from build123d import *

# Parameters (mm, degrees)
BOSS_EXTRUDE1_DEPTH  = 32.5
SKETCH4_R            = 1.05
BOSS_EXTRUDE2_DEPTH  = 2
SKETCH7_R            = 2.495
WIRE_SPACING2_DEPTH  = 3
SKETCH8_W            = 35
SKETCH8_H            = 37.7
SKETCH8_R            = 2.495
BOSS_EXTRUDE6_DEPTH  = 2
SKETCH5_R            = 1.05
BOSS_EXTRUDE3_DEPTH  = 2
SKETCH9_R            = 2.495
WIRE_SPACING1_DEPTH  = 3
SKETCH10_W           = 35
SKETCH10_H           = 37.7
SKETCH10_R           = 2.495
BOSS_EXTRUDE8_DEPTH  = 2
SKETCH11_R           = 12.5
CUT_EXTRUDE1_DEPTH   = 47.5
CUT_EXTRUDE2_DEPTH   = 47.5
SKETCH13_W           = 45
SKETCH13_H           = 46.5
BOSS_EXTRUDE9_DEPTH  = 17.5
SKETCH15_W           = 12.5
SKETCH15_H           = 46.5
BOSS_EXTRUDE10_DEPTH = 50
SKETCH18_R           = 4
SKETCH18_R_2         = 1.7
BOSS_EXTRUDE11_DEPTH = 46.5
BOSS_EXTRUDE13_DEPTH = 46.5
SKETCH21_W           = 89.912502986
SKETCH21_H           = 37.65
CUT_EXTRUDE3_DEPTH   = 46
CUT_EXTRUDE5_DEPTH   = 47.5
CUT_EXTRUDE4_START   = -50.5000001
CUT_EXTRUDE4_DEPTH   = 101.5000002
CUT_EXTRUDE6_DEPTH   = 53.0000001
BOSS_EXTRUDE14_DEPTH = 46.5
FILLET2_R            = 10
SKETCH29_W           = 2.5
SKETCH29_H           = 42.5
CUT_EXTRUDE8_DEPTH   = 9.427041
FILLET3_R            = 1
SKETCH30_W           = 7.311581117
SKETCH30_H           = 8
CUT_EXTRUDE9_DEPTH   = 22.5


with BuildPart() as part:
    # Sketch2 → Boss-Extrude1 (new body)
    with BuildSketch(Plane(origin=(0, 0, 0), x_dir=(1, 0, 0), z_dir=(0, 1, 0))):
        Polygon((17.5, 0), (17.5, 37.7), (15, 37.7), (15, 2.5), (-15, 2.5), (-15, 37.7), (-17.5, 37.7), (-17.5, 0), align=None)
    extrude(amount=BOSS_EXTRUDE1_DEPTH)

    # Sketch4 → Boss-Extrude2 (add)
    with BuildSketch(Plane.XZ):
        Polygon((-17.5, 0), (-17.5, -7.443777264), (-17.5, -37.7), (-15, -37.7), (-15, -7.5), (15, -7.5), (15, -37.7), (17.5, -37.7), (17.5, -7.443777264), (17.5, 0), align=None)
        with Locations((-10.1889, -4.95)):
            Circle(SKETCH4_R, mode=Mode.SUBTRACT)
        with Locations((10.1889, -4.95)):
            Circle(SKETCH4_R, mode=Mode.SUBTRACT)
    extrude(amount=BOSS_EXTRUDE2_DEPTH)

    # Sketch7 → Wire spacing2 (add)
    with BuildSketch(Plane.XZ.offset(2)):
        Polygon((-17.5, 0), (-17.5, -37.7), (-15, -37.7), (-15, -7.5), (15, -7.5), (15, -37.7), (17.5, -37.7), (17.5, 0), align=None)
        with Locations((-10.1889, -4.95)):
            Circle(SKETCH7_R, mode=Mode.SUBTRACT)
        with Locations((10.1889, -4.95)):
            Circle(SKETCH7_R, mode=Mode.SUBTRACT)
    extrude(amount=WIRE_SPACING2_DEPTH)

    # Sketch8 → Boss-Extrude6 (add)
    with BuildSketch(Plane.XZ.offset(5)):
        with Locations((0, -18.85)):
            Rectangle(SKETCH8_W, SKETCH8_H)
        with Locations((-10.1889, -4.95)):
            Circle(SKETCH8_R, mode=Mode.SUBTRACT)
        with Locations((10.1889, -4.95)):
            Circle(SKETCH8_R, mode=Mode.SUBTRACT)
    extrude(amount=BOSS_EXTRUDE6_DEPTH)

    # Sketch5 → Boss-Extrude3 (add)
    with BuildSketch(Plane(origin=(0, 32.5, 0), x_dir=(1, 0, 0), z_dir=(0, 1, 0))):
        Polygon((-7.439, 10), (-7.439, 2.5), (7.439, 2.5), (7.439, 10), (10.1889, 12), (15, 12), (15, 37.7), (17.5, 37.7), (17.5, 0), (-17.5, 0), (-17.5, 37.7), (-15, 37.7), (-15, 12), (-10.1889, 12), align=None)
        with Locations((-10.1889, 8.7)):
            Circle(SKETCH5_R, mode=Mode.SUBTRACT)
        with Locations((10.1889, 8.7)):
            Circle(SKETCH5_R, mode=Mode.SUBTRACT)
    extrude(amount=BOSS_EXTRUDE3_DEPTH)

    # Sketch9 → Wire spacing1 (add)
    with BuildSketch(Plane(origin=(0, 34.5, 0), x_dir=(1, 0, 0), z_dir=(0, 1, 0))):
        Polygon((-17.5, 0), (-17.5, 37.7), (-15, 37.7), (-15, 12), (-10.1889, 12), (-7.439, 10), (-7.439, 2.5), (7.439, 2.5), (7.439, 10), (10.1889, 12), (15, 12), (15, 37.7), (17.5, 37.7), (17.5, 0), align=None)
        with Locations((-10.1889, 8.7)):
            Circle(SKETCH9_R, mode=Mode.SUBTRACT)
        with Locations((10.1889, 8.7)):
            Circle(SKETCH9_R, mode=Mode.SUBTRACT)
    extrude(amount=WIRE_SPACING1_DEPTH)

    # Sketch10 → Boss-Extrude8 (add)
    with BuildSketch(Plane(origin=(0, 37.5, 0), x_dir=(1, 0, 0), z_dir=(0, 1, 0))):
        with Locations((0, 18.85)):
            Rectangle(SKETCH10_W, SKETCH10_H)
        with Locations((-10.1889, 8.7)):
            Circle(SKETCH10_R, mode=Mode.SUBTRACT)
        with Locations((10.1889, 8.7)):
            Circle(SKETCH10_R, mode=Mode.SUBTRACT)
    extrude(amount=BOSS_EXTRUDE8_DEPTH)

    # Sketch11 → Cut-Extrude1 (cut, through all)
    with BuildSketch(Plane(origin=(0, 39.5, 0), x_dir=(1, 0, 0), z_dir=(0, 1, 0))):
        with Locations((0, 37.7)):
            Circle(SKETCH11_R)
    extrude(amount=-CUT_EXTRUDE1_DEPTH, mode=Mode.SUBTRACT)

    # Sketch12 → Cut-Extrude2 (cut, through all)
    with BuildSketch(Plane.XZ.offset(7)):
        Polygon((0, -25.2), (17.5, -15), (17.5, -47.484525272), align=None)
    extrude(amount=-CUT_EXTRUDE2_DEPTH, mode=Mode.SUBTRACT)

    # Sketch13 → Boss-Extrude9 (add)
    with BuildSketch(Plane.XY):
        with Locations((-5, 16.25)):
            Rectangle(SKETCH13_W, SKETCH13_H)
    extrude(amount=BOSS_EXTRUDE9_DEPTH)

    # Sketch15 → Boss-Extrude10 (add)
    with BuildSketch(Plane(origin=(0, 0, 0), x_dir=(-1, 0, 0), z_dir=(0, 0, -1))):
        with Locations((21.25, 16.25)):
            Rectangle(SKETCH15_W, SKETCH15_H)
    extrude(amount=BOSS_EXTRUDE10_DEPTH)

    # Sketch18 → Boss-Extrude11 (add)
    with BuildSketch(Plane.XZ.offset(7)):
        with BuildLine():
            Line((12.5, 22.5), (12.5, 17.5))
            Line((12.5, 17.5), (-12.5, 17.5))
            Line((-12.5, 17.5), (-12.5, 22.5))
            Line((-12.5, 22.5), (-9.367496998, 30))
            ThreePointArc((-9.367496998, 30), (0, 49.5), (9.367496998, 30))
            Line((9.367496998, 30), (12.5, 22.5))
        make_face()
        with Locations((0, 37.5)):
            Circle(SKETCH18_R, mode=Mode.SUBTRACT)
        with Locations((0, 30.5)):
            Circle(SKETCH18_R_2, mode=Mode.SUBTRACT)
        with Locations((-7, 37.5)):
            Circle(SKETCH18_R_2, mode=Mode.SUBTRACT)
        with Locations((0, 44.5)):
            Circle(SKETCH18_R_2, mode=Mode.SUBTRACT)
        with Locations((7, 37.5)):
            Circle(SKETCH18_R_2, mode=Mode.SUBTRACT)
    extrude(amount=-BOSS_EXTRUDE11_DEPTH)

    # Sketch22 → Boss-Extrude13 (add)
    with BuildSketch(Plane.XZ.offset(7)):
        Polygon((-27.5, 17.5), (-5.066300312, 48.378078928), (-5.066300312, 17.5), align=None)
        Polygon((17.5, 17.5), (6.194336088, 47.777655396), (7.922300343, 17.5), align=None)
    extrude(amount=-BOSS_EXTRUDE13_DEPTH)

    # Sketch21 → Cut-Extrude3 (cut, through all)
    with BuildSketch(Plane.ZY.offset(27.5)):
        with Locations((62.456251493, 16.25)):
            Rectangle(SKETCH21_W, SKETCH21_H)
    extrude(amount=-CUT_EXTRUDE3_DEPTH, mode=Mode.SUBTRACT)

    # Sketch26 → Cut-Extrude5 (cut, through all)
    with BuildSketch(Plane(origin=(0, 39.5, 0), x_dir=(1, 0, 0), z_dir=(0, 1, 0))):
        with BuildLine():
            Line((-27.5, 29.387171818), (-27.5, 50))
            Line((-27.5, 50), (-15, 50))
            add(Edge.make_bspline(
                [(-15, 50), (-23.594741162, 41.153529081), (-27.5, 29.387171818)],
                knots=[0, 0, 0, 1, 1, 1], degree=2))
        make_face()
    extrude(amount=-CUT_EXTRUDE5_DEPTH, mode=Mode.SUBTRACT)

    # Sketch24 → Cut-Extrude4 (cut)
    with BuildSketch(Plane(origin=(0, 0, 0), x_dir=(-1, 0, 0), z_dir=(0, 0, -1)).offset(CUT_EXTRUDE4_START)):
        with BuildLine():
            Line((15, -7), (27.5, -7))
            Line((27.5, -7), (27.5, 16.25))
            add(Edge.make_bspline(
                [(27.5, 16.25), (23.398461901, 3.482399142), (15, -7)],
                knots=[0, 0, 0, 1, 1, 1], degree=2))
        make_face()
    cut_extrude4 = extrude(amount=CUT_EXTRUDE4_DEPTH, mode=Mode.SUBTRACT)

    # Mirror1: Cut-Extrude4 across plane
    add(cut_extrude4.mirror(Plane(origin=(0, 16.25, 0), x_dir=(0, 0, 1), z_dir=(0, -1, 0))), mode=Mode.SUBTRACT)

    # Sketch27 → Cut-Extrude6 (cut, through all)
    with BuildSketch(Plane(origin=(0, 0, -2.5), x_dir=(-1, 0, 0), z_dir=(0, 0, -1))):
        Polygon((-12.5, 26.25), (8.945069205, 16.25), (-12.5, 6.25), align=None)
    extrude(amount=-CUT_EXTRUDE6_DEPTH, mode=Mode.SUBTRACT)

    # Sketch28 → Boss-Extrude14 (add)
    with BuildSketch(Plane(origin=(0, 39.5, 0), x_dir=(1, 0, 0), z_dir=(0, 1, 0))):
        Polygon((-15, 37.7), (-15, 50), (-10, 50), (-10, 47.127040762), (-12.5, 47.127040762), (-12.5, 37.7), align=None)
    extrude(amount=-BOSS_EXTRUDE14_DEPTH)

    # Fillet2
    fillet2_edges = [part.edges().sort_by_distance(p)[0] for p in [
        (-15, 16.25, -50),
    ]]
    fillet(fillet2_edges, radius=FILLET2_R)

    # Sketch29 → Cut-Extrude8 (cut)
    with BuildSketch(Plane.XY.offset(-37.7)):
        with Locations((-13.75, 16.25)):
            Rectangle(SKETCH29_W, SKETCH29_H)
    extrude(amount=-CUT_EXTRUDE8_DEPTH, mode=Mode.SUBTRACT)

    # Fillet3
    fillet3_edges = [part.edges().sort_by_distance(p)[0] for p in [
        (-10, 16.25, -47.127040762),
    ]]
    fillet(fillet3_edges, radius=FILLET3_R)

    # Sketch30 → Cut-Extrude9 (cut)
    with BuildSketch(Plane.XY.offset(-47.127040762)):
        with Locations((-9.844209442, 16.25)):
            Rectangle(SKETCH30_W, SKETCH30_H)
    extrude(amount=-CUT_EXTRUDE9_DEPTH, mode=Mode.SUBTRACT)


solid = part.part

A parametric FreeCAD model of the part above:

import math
import FreeCAD as App
import Part
import Sketcher

V = App.Vector
Q = App.Units.Quantity


def edges_at(feature, points):
    """Names of the edges that pass closest to the given points."""
    edges = feature.Shape.Edges
    near = lambda p: min(range(len(edges)), key=lambda i: edges[i].distToShape(Part.Vertex(*p))[0])
    return sorted({f"Edge{near(p) + 1}" for p in points})


def add_polygon(sketch, points):
    """Adds a closed chain of lines whose ends are joined by coincident constraints."""
    first, n = sketch.GeometryCount, len(points)
    for a, b in zip(points, points[1:] + points[:1]):
        sketch.addGeometry(Part.LineSegment(App.Vector(*a, 0), App.Vector(*b, 0)), False)
    for i in range(n):
        sketch.addConstraint(Sketcher.Constraint("Coincident", first + i, 2, first + (i + 1) % n, 1))

doc = App.newDocument("Part")
body = doc.addObject("PartDesign::Body", "Body")

# Sketch on XZ plane
sketch1 = doc.addObject("Sketcher::SketchObject", "Sketch")
body.addObject(sketch1)
sketch1.AttachmentSupport = (doc.XZ_Plane, [""])
sketch1.MapMode = "FlatFace"
add_polygon(sketch1, [(17.5, 0), (17.5, -37.7), (15, -37.7), (15, -2.5), (-15, -2.5), (-15, -37.7), (-17.5, -37.7), (-17.5, 0)])  # lines 0-7
sketch1.addConstraint([
    Sketcher.Constraint("Vertical", 0),
    Sketcher.Constraint("Horizontal", 1),
    Sketcher.Constraint("Vertical", 2),
    Sketcher.Constraint("Horizontal", 3),
    Sketcher.Constraint("Vertical", 4),
    Sketcher.Constraint("Horizontal", 5),
    Sketcher.Constraint("Vertical", 6),
    Sketcher.Constraint("Horizontal", 7),
    Sketcher.Constraint("Symmetric", 6, 2, 7, 2, -1, 1),
    Sketcher.Constraint("Symmetric", 1, 2, 4, 2, -2),
    Sketcher.Constraint("DistanceX", 3, 2, 3, 1, 30.0),
    Sketcher.Constraint("DistanceX", 7, 1, 7, 2, 35.0),
    Sketcher.Constraint("DistanceY", 0, 2, 0, 1, 37.7),
    Sketcher.Constraint("DistanceY", 2, 1, 2, 2, 35.2),
])
pad1 = doc.addObject("PartDesign::Pad", "Pad")
body.addObject(pad1)
pad1.Profile = sketch1
pad1.Length = 32.5
pad1.Reversed = True

# Sketch on XZ plane
sketch2 = doc.addObject("Sketcher::SketchObject", "Sketch001")
body.addObject(sketch2)
sketch2.AttachmentSupport = (doc.XZ_Plane, [""])
sketch2.MapMode = "FlatFace"
add_polygon(sketch2, [(-17.5, 0), (-17.5, -37.7), (-15, -37.7), (-15, -7.5), (15, -7.5), (15, -37.7), (17.5, -37.7), (17.5, 0)])  # lines 0-7
sketch2.addGeometry(Part.Circle(V(-10.2, -5, 0), V(0, 0, 1), 1.1), False)  # 8
sketch2.addGeometry(Part.Circle(V(10.2, -5, 0), V(0, 0, 1), 1.1), False)  # 9
sketch2.addConstraint([
    Sketcher.Constraint("Vertical", 0),
    Sketcher.Constraint("Horizontal", 1),
    Sketcher.Constraint("Vertical", 2),
    Sketcher.Constraint("Horizontal", 3),
    Sketcher.Constraint("Vertical", 4),
    Sketcher.Constraint("Horizontal", 5),
    Sketcher.Constraint("Vertical", 6),
    Sketcher.Constraint("Horizontal", 7),
    Sketcher.Constraint("Equal", 8, 9),
    Sketcher.Constraint("Symmetric", 6, 2, 7, 2, -1, 1),
    Sketcher.Constraint("Symmetric", 8, 3, 9, 3, -2),
    Sketcher.Constraint("Symmetric", 1, 2, 4, 2, -2),
    Sketcher.Constraint("Diameter", 8, 2.1),
    Sketcher.Constraint("DistanceX", 3, 1, 3, 2, 30.0),
    Sketcher.Constraint("DistanceX", 7, 2, 7, 1, 35.0),
    Sketcher.Constraint("DistanceY", 0, 2, 0, 1, 37.7),
    Sketcher.Constraint("DistanceY", 2, 1, 2, 2, 30.2),
    Sketcher.Constraint("DistanceY", 8, 3, -1, 1, 4.95),
    Sketcher.Constraint("DistanceX", 8, 3, -1, 1, 10.1889),
])
pad2 = doc.addObject("PartDesign::Pad", "Pad001")
body.addObject(pad2)
pad2.Profile = sketch2
pad2.Length = 2

# Sketch on XZ plane
sketch3 = doc.addObject("Sketcher::SketchObject", "Sketch002")
body.addObject(sketch3)
sketch3.AttachmentSupport = (doc.XZ_Plane, [""])
sketch3.MapMode = "FlatFace"
sketch3.AttachmentOffset = App.Placement(V(0, 0, 2), App.Rotation())
add_polygon(sketch3, [(-17.5, 0), (-17.5, -37.7), (-15, -37.7), (-15, -7.5), (15, -7.5), (15, -37.7), (17.5, -37.7), (17.5, 0)])  # lines 0-7
sketch3.addGeometry(Part.Circle(V(-10.2, -5, 0), V(0, 0, 1), 2.5), False)  # 8
sketch3.addGeometry(Part.Circle(V(10.2, -5, 0), V(0, 0, 1), 2.5), False)  # 9
sketch3.addConstraint([
    Sketcher.Constraint("Vertical", 0),
    Sketcher.Constraint("Horizontal", 1),
    Sketcher.Constraint("Vertical", 2),
    Sketcher.Constraint("Horizontal", 3),
    Sketcher.Constraint("Vertical", 4),
    Sketcher.Constraint("Horizontal", 5),
    Sketcher.Constraint("Vertical", 6),
    Sketcher.Constraint("Horizontal", 7),
    Sketcher.Constraint("Equal", 8, 9),
    Sketcher.Constraint("Symmetric", 6, 2, 7, 2, -1, 1),
    Sketcher.Constraint("Symmetric", 8, 3, 9, 3, -2),
    Sketcher.Constraint("Symmetric", 1, 2, 4, 2, -2),
    Sketcher.Constraint("Diameter", 8, 4.99),
    Sketcher.Constraint("DistanceX", 3, 1, 3, 2, 30.0),
    Sketcher.Constraint("DistanceX", 7, 2, 7, 1, 35.0),
    Sketcher.Constraint("DistanceY", 0, 2, 0, 1, 37.7),
    Sketcher.Constraint("DistanceY", 2, 1, 2, 2, 30.2),
    Sketcher.Constraint("DistanceY", 8, 3, -1, 1, 4.95),
    Sketcher.Constraint("DistanceX", 8, 3, -1, 1, 10.1889),
])
pad3 = doc.addObject("PartDesign::Pad", "Pad002")
body.addObject(pad3)
pad3.Profile = sketch3
pad3.Length = 3

# Sketch on XZ plane
sketch4 = doc.addObject("Sketcher::SketchObject", "Sketch003")
body.addObject(sketch4)
sketch4.AttachmentSupport = (doc.XZ_Plane, [""])
sketch4.MapMode = "FlatFace"
sketch4.AttachmentOffset = App.Placement(V(0, 0, 5), App.Rotation())
add_polygon(sketch4, [(-17.5, 0), (-17.5, -37.7), (17.5, -37.7), (17.5, 0)])  # lines 0-3
sketch4.addGeometry(Part.Circle(V(-10.2, -5, 0), V(0, 0, 1), 2.5), False)  # 4
sketch4.addGeometry(Part.Circle(V(10.2, -5, 0), V(0, 0, 1), 2.5), False)  # 5
sketch4.addConstraint([
    Sketcher.Constraint("Vertical", 0),
    Sketcher.Constraint("Horizontal", 1),
    Sketcher.Constraint("Vertical", 2),
    Sketcher.Constraint("Horizontal", 3),
    Sketcher.Constraint("Equal", 4, 5),
    Sketcher.Constraint("Symmetric", 2, 2, 3, 2, -1, 1),
    Sketcher.Constraint("Symmetric", 4, 3, 5, 3, -2),
    Sketcher.Constraint("Diameter", 4, 4.99),
    Sketcher.Constraint("DistanceX", 1, 1, 1, 2, 35.0),
    Sketcher.Constraint("DistanceY", 0, 2, 0, 1, 37.7),
    Sketcher.Constraint("DistanceY", 4, 3, -1, 1, 4.95),
    Sketcher.Constraint("DistanceX", 4, 3, -1, 1, 10.1889),
])
pad4 = doc.addObject("PartDesign::Pad", "Pad003")
body.addObject(pad4)
pad4.Profile = sketch4
pad4.Length = 2

# Sketch on XZ plane
sketch5 = doc.addObject("Sketcher::SketchObject", "Sketch004")
body.addObject(sketch5)
sketch5.AttachmentSupport = (doc.XZ_Plane, [""])
sketch5.MapMode = "FlatFace"
sketch5.AttachmentOffset = App.Placement(V(0, 0, -32.5), App.Rotation())
add_polygon(sketch5, [(-7.4, -2.5), (-7.4, -10), (-10.2, -12), (-15, -12), (-15, -37.7), (-17.5, -37.7), (-17.5, 0), (17.5, 0), (17.5, -37.7), (15, -37.7), (15, -12), (10.2, -12), (7.4, -10), (7.4, -2.5)])  # lines 0-13
sketch5.addGeometry(Part.Circle(V(10.2, -8.7, 0), V(0, 0, 1), 1.1), False)  # 14
sketch5.addGeometry(Part.Circle(V(-10.2, -8.7, 0), V(0, 0, 1), 1.1), False)  # 15
sketch5.addConstraint([
    Sketcher.Constraint("Vertical", 0),
    Sketcher.Constraint("Horizontal", 2),
    Sketcher.Constraint("Vertical", 3),
    Sketcher.Constraint("Horizontal", 4),
    Sketcher.Constraint("Vertical", 5),
    Sketcher.Constraint("Horizontal", 6),
    Sketcher.Constraint("Vertical", 7),
    Sketcher.Constraint("Horizontal", 8),
    Sketcher.Constraint("Vertical", 9),
    Sketcher.Constraint("Horizontal", 10),
    Sketcher.Constraint("Vertical", 12),
    Sketcher.Constraint("Horizontal", 13),
    Sketcher.Constraint("Equal", 14, 15),
    Sketcher.Constraint("Symmetric", 5, 2, 6, 2, -1, 1),
    Sketcher.Constraint("Symmetric", 14, 3, 15, 3, -2),
    Sketcher.Constraint("Symmetric", 3, 2, 8, 2, -2),
    Sketcher.Constraint("Symmetric", 1, 2, 10, 2, -2),
    Sketcher.Constraint("Symmetric", 0, 2, 11, 2, -2),
    Sketcher.Constraint("Vertical", 15, 3, 1, 2),
    Sketcher.Constraint("Diameter", 14, 2.1),
    Sketcher.Constraint("DistanceX", 6, 1, 6, 2, 35.0),
    Sketcher.Constraint("DistanceX", 4, 2, 4, 1, 2.5),
    Sketcher.Constraint("DistanceY", 0, 2, 0, 1, 7.5),
    Sketcher.Constraint("DistanceY", 3, 2, 3, 1, 25.7),
    Sketcher.Constraint("DistanceY", 5, 1, 5, 2, 37.7),
    Sketcher.Constraint("DistanceY", 0, 2, -1, 1, 10.0),
    Sketcher.Constraint("DistanceY", 3, 2, 15, 3, 29.0),
    Sketcher.Constraint("DistanceX", 13, 2, 13, 1, 14.878),
    Sketcher.Constraint("DistanceX", 2, 2, 2, 1, 4.8111),
])
pad5 = doc.addObject("PartDesign::Pad", "Pad004")
body.addObject(pad5)
pad5.Profile = sketch5
pad5.Length = 2
pad5.Reversed = True

# Sketch on XZ plane
sketch6 = doc.addObject("Sketcher::SketchObject", "Sketch005")
body.addObject(sketch6)
sketch6.AttachmentSupport = (doc.XZ_Plane, [""])
sketch6.MapMode = "FlatFace"
sketch6.AttachmentOffset = App.Placement(V(0, 0, -34.5), App.Rotation())
add_polygon(sketch6, [(-17.5, -37.7), (-17.5, 0), (17.5, 0), (17.5, -37.7), (15, -37.7), (15, -12), (10.2, -12), (7.4, -10), (7.4, -2.5), (-7.4, -2.5), (-7.4, -10), (-10.2, -12), (-15, -12), (-15, -37.7)])  # lines 0-13
sketch6.addGeometry(Part.Circle(V(10.2, -8.7, 0), V(0, 0, 1), 2.5), False)  # 14
sketch6.addGeometry(Part.Circle(V(-10.2, -8.7, 0), V(0, 0, 1), 2.5), False)  # 15
sketch6.addConstraint([
    Sketcher.Constraint("Vertical", 0),
    Sketcher.Constraint("Horizontal", 1),
    Sketcher.Constraint("Vertical", 2),
    Sketcher.Constraint("Horizontal", 3),
    Sketcher.Constraint("Vertical", 4),
    Sketcher.Constraint("Horizontal", 5),
    Sketcher.Constraint("Vertical", 7),
    Sketcher.Constraint("Horizontal", 8),
    Sketcher.Constraint("Vertical", 9),
    Sketcher.Constraint("Horizontal", 11),
    Sketcher.Constraint("Vertical", 12),
    Sketcher.Constraint("Horizontal", 13),
    Sketcher.Constraint("Equal", 14, 15),
    Sketcher.Constraint("Symmetric", 0, 2, 1, 2, -1, 1),
    Sketcher.Constraint("Symmetric", 14, 3, 15, 3, -2),
    Sketcher.Constraint("Symmetric", 6, 2, 9, 2, -2),
    Sketcher.Constraint("Symmetric", 5, 2, 10, 2, -2),
    Sketcher.Constraint("Symmetric", 3, 2, 12, 2, -2),
    Sketcher.Constraint("Vertical", 14, 3, 5, 2),
    Sketcher.Constraint("Diameter", 14, 4.99),
    Sketcher.Constraint("DistanceX", 1, 1, 1, 2, 35.0),
    Sketcher.Constraint("DistanceX", 3, 2, 3, 1, 2.5),
    Sketcher.Constraint("DistanceY", 0, 1, 0, 2, 37.7),
    Sketcher.Constraint("DistanceY", 4, 1, 4, 2, 25.7),
    Sketcher.Constraint("DistanceY", 7, 1, 7, 2, 7.5),
    Sketcher.Constraint("DistanceY", 6, 2, -1, 1, 10.0),
    Sketcher.Constraint("DistanceY", 2, 2, 14, 3, 29.0),
    Sketcher.Constraint("DistanceX", 8, 2, 8, 1, 14.878),
    Sketcher.Constraint("DistanceX", 5, 2, 5, 1, 4.8111),
])
pad6 = doc.addObject("PartDesign::Pad", "Pad005")
body.addObject(pad6)
pad6.Profile = sketch6
pad6.Length = 3
pad6.Reversed = True

# Sketch on XZ plane
sketch7 = doc.addObject("Sketcher::SketchObject", "Sketch006")
body.addObject(sketch7)
sketch7.AttachmentSupport = (doc.XZ_Plane, [""])
sketch7.MapMode = "FlatFace"
sketch7.AttachmentOffset = App.Placement(V(0, 0, -37.5), App.Rotation())
add_polygon(sketch7, [(-17.5, -37.7), (-17.5, 0), (17.5, 0), (17.5, -37.7)])  # lines 0-3
sketch7.addGeometry(Part.Circle(V(-10.2, -8.7, 0), V(0, 0, 1), 2.5), False)  # 4
sketch7.addGeometry(Part.Circle(V(10.2, -8.7, 0), V(0, 0, 1), 2.5), False)  # 5
sketch7.addConstraint([
    Sketcher.Constraint("Vertical", 0),
    Sketcher.Constraint("Horizontal", 1),
    Sketcher.Constraint("Vertical", 2),
    Sketcher.Constraint("Horizontal", 3),
    Sketcher.Constraint("Equal", 4, 5),
    Sketcher.Constraint("Symmetric", 0, 2, 1, 2, -1, 1),
    Sketcher.Constraint("Symmetric", 4, 3, 5, 3, -2),
    Sketcher.Constraint("Diameter", 4, 4.99),
    Sketcher.Constraint("DistanceX", 1, 1, 1, 2, 35.0),
    Sketcher.Constraint("DistanceY", 0, 1, 0, 2, 37.7),
    Sketcher.Constraint("DistanceY", 2, 2, 5, 3, 29.0),
    Sketcher.Constraint("DistanceX", 4, 3, -1, 1, 10.1889),
])
pad7 = doc.addObject("PartDesign::Pad", "Pad006")
body.addObject(pad7)
pad7.Profile = sketch7
pad7.Length = 2
pad7.Reversed = True

# Sketch on XZ plane
sketch8 = doc.addObject("Sketcher::SketchObject", "Sketch007")
body.addObject(sketch8)
sketch8.AttachmentSupport = (doc.XZ_Plane, [""])
sketch8.MapMode = "FlatFace"
sketch8.AttachmentOffset = App.Placement(V(0, 0, -39.5), App.Rotation())
sketch8.addGeometry(Part.Circle(V(0, -38, 0), V(0, 0, 1), 12), False)
sketch8.addConstraint([
    Sketcher.Constraint("PointOnObject", 0, 3, -2),
    Sketcher.Constraint("Diameter", 0, 25.0),
    Sketcher.Constraint("DistanceY", 0, 3, -1, 1, 37.7),
])
pocket1 = doc.addObject("PartDesign::Pocket", "Pocket")
body.addObject(pocket1)
pocket1.Profile = sketch8
pocket1.Type = "ThroughAll"
pocket1.Reversed = True

# Sketch on XZ plane
sketch9 = doc.addObject("Sketcher::SketchObject", "Sketch008")
body.addObject(sketch9)
sketch9.AttachmentSupport = (doc.XZ_Plane, [""])
sketch9.MapMode = "FlatFace"
sketch9.AttachmentOffset = App.Placement(V(0, 0, 7), App.Rotation())
add_polygon(sketch9, [(18, -15), (0, -25), (18, -47)])  # lines 0-2
sketch9.addConstraint([
    Sketcher.Constraint("Vertical", 2),
    Sketcher.Constraint("PointOnObject", 0, 2, -2),
    Sketcher.Constraint("DistanceY", 2, 2, -1, 1, 15.0),
    Sketcher.Constraint("DistanceY", 0, 2, -1, 1, 25.2),
    Sketcher.Constraint("DistanceX", -1, 1, 1, 2, 17.5),
    Sketcher.Constraint("Distance", 1, 28.334609),
])
pocket2 = doc.addObject("PartDesign::Pocket", "Pocket001")
body.addObject(pocket2)
pocket2.Profile = sketch9
pocket2.Type = "ThroughAll"

# Sketch on XY plane
sketch10 = doc.addObject("Sketcher::SketchObject", "Sketch009")
body.addObject(sketch10)
sketch10.AttachmentSupport = (doc.XY_Plane, [""])
sketch10.MapMode = "FlatFace"
add_polygon(sketch10, [(-28, 40), (-28, -7), (18, -7), (18, 40)])  # lines 0-3
sketch10.addConstraint([
    Sketcher.Constraint("Vertical", 0),
    Sketcher.Constraint("Horizontal", 1),
    Sketcher.Constraint("Vertical", 2),
    Sketcher.Constraint("Horizontal", 3),
    Sketcher.Constraint("DistanceX", 1, 1, 1, 2, 45.0),
    Sketcher.Constraint("DistanceY", 0, 2, 0, 1, 46.5),
    Sketcher.Constraint("DistanceY", 0, 2, -1, 1, 7.0),
    Sketcher.Constraint("DistanceX", 0, 2, -1, 1, 27.5),
])
pad8 = doc.addObject("PartDesign::Pad", "Pad007")
body.addObject(pad8)
pad8.Profile = sketch10
pad8.Length = 17.5

# Sketch on XY plane
sketch11 = doc.addObject("Sketcher::SketchObject", "Sketch010")
body.addObject(sketch11)
sketch11.AttachmentSupport = (doc.XY_Plane, [""])
sketch11.MapMode = "FlatFace"
add_polygon(sketch11, [(-15, 40), (-15, -7), (-28, -7), (-28, 40)])  # lines 0-3
sketch11.addConstraint([
    Sketcher.Constraint("Vertical", 0),
    Sketcher.Constraint("Horizontal", 1),
    Sketcher.Constraint("Vertical", 2),
    Sketcher.Constraint("Horizontal", 3),
    Sketcher.Constraint("DistanceX", 1, 2, 1, 1, 12.5),
    Sketcher.Constraint("DistanceY", 0, 2, 0, 1, 46.5),
    Sketcher.Constraint("DistanceX", 0, 2, -1, 1, 15.0),
    Sketcher.Constraint("DistanceY", 0, 2, -1, 1, 7.0),
])
pad9 = doc.addObject("PartDesign::Pad", "Pad008")
body.addObject(pad9)
pad9.Profile = sketch11
pad9.Length = 50
pad9.Reversed = True

# Sketch on XZ plane
sketch12 = doc.addObject("Sketcher::SketchObject", "Sketch011")
body.addObject(sketch12)
sketch12.AttachmentSupport = (doc.XZ_Plane, [""])
sketch12.MapMode = "FlatFace"
sketch12.AttachmentOffset = App.Placement(V(0, 0, 7), App.Rotation())
sketch12.addGeometry([
    Part.LineSegment(V(12.5, 17.5, 0), V(12.5, 22.5, 0)),  # 0
    Part.LineSegment(V(12.5, 22.5, 0), V(9.4, 30, 0)),  # 1
    Part.ArcOfCircle(Part.Circle(V(0, 37.5, 0), V(0, 0, 1), 12), math.radians(-39), math.radians(219)),  # 2
    Part.LineSegment(V(-9.4, 30, 0), V(-12.5, 22.5, 0)),  # 3
    Part.LineSegment(V(-12.5, 22.5, 0), V(-12.5, 17.5, 0)),  # 4
    Part.LineSegment(V(-12.5, 17.5, 0), V(12.5, 17.5, 0)),  # 5
    Part.Circle(V(0, 30.5, 0), V(0, 0, 1), 1.7),  # 6
    Part.Circle(V(7, 37.5, 0), V(0, 0, 1), 1.7),  # 7
    Part.Circle(V(0, 37.5, 0), V(0, 0, 1), 4),  # 8
    Part.Circle(V(-7, 37.5, 0), V(0, 0, 1), 1.7),  # 9
    Part.Circle(V(0, 44.5, 0), V(0, 0, 1), 1.7),  # 10
], False)
sketch12.addConstraint([
    Sketcher.Constraint("Coincident", 0, 2, 1, 1),
    Sketcher.Constraint("Coincident", 1, 2, 2, 1),
    Sketcher.Constraint("Coincident", 2, 2, 3, 1),
    Sketcher.Constraint("Coincident", 3, 2, 4, 1),
    Sketcher.Constraint("Coincident", 4, 2, 5, 1),
    Sketcher.Constraint("Coincident", 5, 2, 0, 1),
    Sketcher.Constraint("Vertical", 0),
    Sketcher.Constraint("Vertical", 4),
    Sketcher.Constraint("Horizontal", 5),
    Sketcher.Constraint("Coincident", 8, 3, 2, 3),
    Sketcher.Constraint("Equal", 6, 7),
    Sketcher.Constraint("Equal", 7, 9),
    Sketcher.Constraint("Equal", 9, 10),
    Sketcher.Constraint("Symmetric", 7, 3, 9, 3, -2),
    Sketcher.Constraint("Symmetric", 1, 2, 2, 2, -2),
    Sketcher.Constraint("Symmetric", 0, 2, 3, 2, -2),
    Sketcher.Constraint("PointOnObject", 6, 3, -2),
    Sketcher.Constraint("PointOnObject", 10, 3, -2),
    Sketcher.Constraint("Horizontal", 2, 3, 7, 3),
    Sketcher.Constraint("Diameter", 8, 8.0),
    Sketcher.Constraint("Radius", 2, 12.0),
    Sketcher.Constraint("Diameter", 6, 3.4),
    Sketcher.Constraint("DistanceX", 5, 1, 5, 2, 25.0),
    Sketcher.Constraint("DistanceY", 0, 1, 0, 2, 5.0),
    Sketcher.Constraint("DistanceX", -1, 1, 7, 3, 7.0),
    Sketcher.Constraint("DistanceY", -1, 1, 1, 2, 30.0),
    Sketcher.Constraint("DistanceY", 6, 3, 2, 3, 7.0),
    Sketcher.Constraint("DistanceY", 2, 3, 10, 3, 7.0),
    Sketcher.Constraint("DistanceY", 0, 2, 6, 3, 8.0),
    Sketcher.Constraint("DistanceY", -1, 1, 2, 3, 37.5),
])
pad10 = doc.addObject("PartDesign::Pad", "Pad009")
body.addObject(pad10)
pad10.Profile = sketch12
pad10.Length = 46.5
pad10.Reversed = True

# Sketch on XZ plane
sketch13 = doc.addObject("Sketcher::SketchObject", "Sketch012")
body.addObject(sketch13)
sketch13.AttachmentSupport = (doc.XZ_Plane, [""])
sketch13.MapMode = "FlatFace"
sketch13.AttachmentOffset = App.Placement(V(0, 0, 7), App.Rotation())
add_polygon(sketch13, [(-5, 48), (-28, 18), (-5, 18)])  # lines 0-2
add_polygon(sketch13, [(18, 18), (6, 48), (8, 18)])  # lines 3-5
sketch13.addConstraint([
    Sketcher.Constraint("Horizontal", 1),
    Sketcher.Constraint("Vertical", 2),
    Sketcher.Constraint("Horizontal", 5),
    Sketcher.Constraint("Horizontal", 1, 2, 4, 2),
    Sketcher.Constraint("DistanceX", 0, 2, 5, 2, 45.0),
    Sketcher.Constraint("DistanceX", 0, 2, -1, 1, 27.5),
    Sketcher.Constraint("DistanceY", -1, 1, 0, 2, 17.5),
    Sketcher.Constraint("DistanceX", 1, 1, 1, 2, 22.4337),
    Sketcher.Constraint("DistanceX", 5, 1, 5, 2, 9.5777),
    Sketcher.Constraint("DistanceY", 2, 1, 2, 2, 30.878079),
    Sketcher.Constraint("Distance", 3, 32.319568),
    Sketcher.Constraint("Distance", 4, 30.326923),
])
pad11 = doc.addObject("PartDesign::Pad", "Pad010")
body.addObject(pad11)
pad11.Profile = sketch13
pad11.Length = 46.5
pad11.Reversed = True

# Sketch on YZ plane
sketch14 = doc.addObject("Sketcher::SketchObject", "Sketch013")
body.addObject(sketch14)
sketch14.AttachmentSupport = (doc.YZ_Plane, [""])
sketch14.MapMode = "FlatFace"
sketch14.AttachmentOffset = App.Placement(V(0, 0, -27.5), App.Rotation())
add_polygon(sketch14, [(35, 18), (-3, 18), (-3, 107), (35, 107)])  # lines 0-3
sketch14.addConstraint([
    Sketcher.Constraint("Horizontal", 0),
    Sketcher.Constraint("Vertical", 1),
    Sketcher.Constraint("Horizontal", 2),
    Sketcher.Constraint("Vertical", 3),
    Sketcher.Constraint("DistanceX", 0, 2, 0, 1, 37.65),
    Sketcher.Constraint("DistanceY", -1, 1, 0, 2, 17.5),
    Sketcher.Constraint("DistanceX", 0, 2, -1, 1, 2.575),
    Sketcher.Constraint("DistanceY", 1, 1, 1, 2, 89.912503),
])
pocket3 = doc.addObject("PartDesign::Pocket", "Pocket002")
body.addObject(pocket3)
pocket3.Profile = sketch14
pocket3.Type = "ThroughAll"
pocket3.Reversed = True

# Sketch on XZ plane
sketch15 = doc.addObject("Sketcher::SketchObject", "Sketch014")
body.addObject(sketch15)
sketch15.AttachmentSupport = (doc.XZ_Plane, [""])
sketch15.MapMode = "FlatFace"
sketch15.AttachmentOffset = App.Placement(V(0, 0, -39.5), App.Rotation())
sketch15.addGeometry([
    Part.LineSegment(V(-27.5, -50, 0), V(-27.5, -29.387172, 0)),
    Part.BSplineCurve([V(-15, -50, 0), V(-23.594741, -41.153529, 0), V(-27.5, -29.387172, 0)], [3, 3], [0, 1], False, 2, [1, 1, 1], False),
    Part.LineSegment(V(-15, -50, 0), V(-27.5, -50, 0)),
], False)
sketch15.addConstraint([
    Sketcher.Constraint("Block", 1),
    Sketcher.Constraint("Coincident", 0, 2, 1, 2),
    Sketcher.Constraint("Coincident", 1, 1, 2, 1),
    Sketcher.Constraint("Coincident", 2, 2, 0, 1),
    Sketcher.Constraint("Vertical", 0),
    Sketcher.Constraint("Horizontal", 2),
])
pocket4 = doc.addObject("PartDesign::Pocket", "Pocket003")
body.addObject(pocket4)
pocket4.Profile = sketch15
pocket4.Type = "ThroughAll"
pocket4.Reversed = True

# Sketch on XY plane
sketch16 = doc.addObject("Sketcher::SketchObject", "Sketch015")
body.addObject(sketch16)
sketch16.AttachmentSupport = (doc.XY_Plane, [""])
sketch16.MapMode = "FlatFace"
sketch16.AttachmentOffset = App.Placement(V(0, 0, 50.5), App.Rotation())
sketch16.addGeometry([
    Part.LineSegment(V(-15, -7, 0), V(-27.5, -7, 0)),
    Part.LineSegment(V(-27.5, -7, 0), V(-27.5, 16.25, 0)),
    Part.BSplineCurve([V(-27.5, 16.25, 0), V(-23.398462, 3.482399, 0), V(-15, -7, 0)], [3, 3], [0, 1], False, 2, [1, 1, 1], False),
], False)
sketch16.addConstraint([
    Sketcher.Constraint("Block", 2),
    Sketcher.Constraint("Coincident", 0, 2, 1, 1),
    Sketcher.Constraint("Coincident", 1, 2, 2, 1),
    Sketcher.Constraint("Coincident", 2, 2, 0, 1),
    Sketcher.Constraint("Horizontal", 0),
    Sketcher.Constraint("Vertical", 1),
])
pocket5 = doc.addObject("PartDesign::Pocket", "Pocket004")
body.addObject(pocket5)
pocket5.Profile = sketch16
pocket5.Length = 101.5
doc.recompute()

datumplane = doc.addObject("PartDesign::Plane", "DatumPlane")
body.addObject(datumplane)
datumplane.AttachmentSupport = (doc.XZ_Plane, [""])
datumplane.MapMode = "FlatFace"
datumplane.AttachmentOffset = App.Placement(V(0, 0, -16.25), App.Rotation())
mirrored = doc.addObject("PartDesign::Mirrored", "Mirrored")
body.addObject(mirrored)
mirrored.Originals = [pocket5]
mirrored.MirrorPlane = (datumplane, [""])
body.Tip = mirrored

# Sketch on XY plane
sketch17 = doc.addObject("Sketcher::SketchObject", "Sketch016")
body.addObject(sketch17)
sketch17.AttachmentSupport = (doc.XY_Plane, [""])
sketch17.MapMode = "FlatFace"
sketch17.AttachmentOffset = App.Placement(V(0, 0, -2.5), App.Rotation())
add_polygon(sketch17, [(-9, 16), (12, 26), (12, 6)])  # lines 0-2
sketch17.addConstraint([
    Sketcher.Constraint("Vertical", 1),
    Sketcher.Constraint("Equal", 0, 2),
    Sketcher.Constraint("DistanceY", 1, 2, 1, 1, 20.0),
    Sketcher.Constraint("Angle", 0, Q("25 deg")),
    Sketcher.Constraint("DistanceX", -1, 1, 0, 2, 12.5),
    Sketcher.Constraint("DistanceY", -1, 1, 0, 2, 26.25),
])
pocket6 = doc.addObject("PartDesign::Pocket", "Pocket005")
body.addObject(pocket6)
pocket6.Profile = sketch17
pocket6.Type = "ThroughAll"
pocket6.Reversed = True

# Sketch on XZ plane
sketch18 = doc.addObject("Sketcher::SketchObject", "Sketch017")
body.addObject(sketch18)
sketch18.AttachmentSupport = (doc.XZ_Plane, [""])
sketch18.MapMode = "FlatFace"
sketch18.AttachmentOffset = App.Placement(V(0, 0, -39.5), App.Rotation())
add_polygon(sketch18, [(-15, -50), (-15, -37.7), (-12.5, -37.7), (-12.5, -47.1), (-10, -47.1), (-10, -50)])  # lines 0-5
sketch18.addConstraint([
    Sketcher.Constraint("Vertical", 0),
    Sketcher.Constraint("Horizontal", 1),
    Sketcher.Constraint("Vertical", 2),
    Sketcher.Constraint("Horizontal", 3),
    Sketcher.Constraint("Vertical", 4),
    Sketcher.Constraint("Horizontal", 5),
    Sketcher.Constraint("Equal", 1, 3),
    Sketcher.Constraint("DistanceX", 5, 2, 5, 1, 5.0),
    Sketcher.Constraint("DistanceY", 0, 1, 0, 2, 12.3),
    Sketcher.Constraint("DistanceX", 0, 2, -1, 1, 15.0),
    Sketcher.Constraint("DistanceY", 4, 2, -1, 1, 50.0),
    Sketcher.Constraint("DistanceY", 2, 2, 2, 1, 9.427041),
])
pad12 = doc.addObject("PartDesign::Pad", "Pad011")
body.addObject(pad12)
pad12.Profile = sketch18
pad12.Length = 46.5
doc.recompute()

fillet = doc.addObject("PartDesign::Fillet", "Fillet")
body.addObject(fillet)
fillet.Base = (pad12, edges_at(pad12, [(-15, 16.25, -50)]))
fillet.Radius = 10

# Sketch on XY plane
sketch19 = doc.addObject("Sketcher::SketchObject", "Sketch018")
body.addObject(sketch19)
sketch19.AttachmentSupport = (doc.XY_Plane, [""])
sketch19.MapMode = "FlatFace"
sketch19.AttachmentOffset = App.Placement(V(0, 0, -37.7), App.Rotation())
add_polygon(sketch19, [(-15, 37.5), (-15, -5), (-12.5, -5), (-12.5, 37.5)])  # lines 0-3
sketch19.addConstraint([
    Sketcher.Constraint("Vertical", 0),
    Sketcher.Constraint("Horizontal", 1),
    Sketcher.Constraint("Vertical", 2),
    Sketcher.Constraint("Horizontal", 3),
    Sketcher.Constraint("DistanceX", 1, 1, 1, 2, 2.5),
    Sketcher.Constraint("DistanceY", 0, 2, 0, 1, 42.5),
    Sketcher.Constraint("DistanceX", 0, 2, -1, 1, 15.0),
    Sketcher.Constraint("DistanceY", 0, 2, -1, 1, 5.0),
])
pocket7 = doc.addObject("PartDesign::Pocket", "Pocket006")
body.addObject(pocket7)
pocket7.Profile = sketch19
pocket7.Length = 9.427041
doc.recompute()

fillet2 = doc.addObject("PartDesign::Fillet", "Fillet001")
body.addObject(fillet2)
fillet2.Base = (pocket7, edges_at(pocket7, [(-10, 16.25, -47.127)]))
fillet2.Radius = 1

# Sketch on XY plane
sketch20 = doc.addObject("Sketcher::SketchObject", "Sketch019")
body.addObject(sketch20)
sketch20.AttachmentSupport = (doc.XY_Plane, [""])
sketch20.MapMode = "FlatFace"
sketch20.AttachmentOffset = App.Placement(V(0, 0, -47.127041), App.Rotation())
add_polygon(sketch20, [(-14, 20), (-14, 12), (-6, 12), (-6, 20)])  # lines 0-3
sketch20.addConstraint([
    Sketcher.Constraint("Vertical", 0),
    Sketcher.Constraint("Horizontal", 1),
    Sketcher.Constraint("Vertical", 2),
    Sketcher.Constraint("Horizontal", 3),
    Sketcher.Constraint("DistanceY", 0, 2, 0, 1, 8.0),
    Sketcher.Constraint("DistanceX", 0, 2, -1, 1, 13.5),
    Sketcher.Constraint("DistanceY", -1, 1, 0, 2, 12.25),
    Sketcher.Constraint("DistanceX", 1, 1, 1, 2, 7.311581),
])
pocket8 = doc.addObject("PartDesign::Pocket", "Pocket007")
body.addObject(pocket8)
pocket8.Profile = sketch20
pocket8.Length = 22.5

doc.recompute()
